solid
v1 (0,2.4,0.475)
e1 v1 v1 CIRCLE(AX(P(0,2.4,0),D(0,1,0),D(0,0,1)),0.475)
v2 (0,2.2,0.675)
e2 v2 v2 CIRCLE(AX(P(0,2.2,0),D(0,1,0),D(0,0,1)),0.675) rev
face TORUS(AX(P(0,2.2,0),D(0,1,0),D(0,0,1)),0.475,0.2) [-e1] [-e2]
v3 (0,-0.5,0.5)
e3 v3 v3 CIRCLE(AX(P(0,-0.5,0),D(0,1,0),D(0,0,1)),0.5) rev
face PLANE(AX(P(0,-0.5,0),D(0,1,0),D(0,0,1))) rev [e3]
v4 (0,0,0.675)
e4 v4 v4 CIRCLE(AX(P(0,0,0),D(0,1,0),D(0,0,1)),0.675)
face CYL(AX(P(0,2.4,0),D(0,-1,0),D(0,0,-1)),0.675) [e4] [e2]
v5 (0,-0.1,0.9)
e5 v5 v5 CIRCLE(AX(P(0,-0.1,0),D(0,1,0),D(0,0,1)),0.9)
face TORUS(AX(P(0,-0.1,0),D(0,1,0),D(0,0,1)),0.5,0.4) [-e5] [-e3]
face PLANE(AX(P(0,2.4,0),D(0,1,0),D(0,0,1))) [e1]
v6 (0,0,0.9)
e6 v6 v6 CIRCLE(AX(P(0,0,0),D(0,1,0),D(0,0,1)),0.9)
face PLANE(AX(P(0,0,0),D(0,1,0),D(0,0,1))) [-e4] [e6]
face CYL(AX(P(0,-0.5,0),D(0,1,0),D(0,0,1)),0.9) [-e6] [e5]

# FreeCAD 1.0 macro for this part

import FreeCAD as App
import Part
import Sketcher


def edges_at(feature, points):
    """Names of the edges that pass closest to the given points."""
    edges = feature.Shape.Edges
    near = lambda p: min(range(len(edges)), key=lambda i: edges[i].distToShape(Part.Vertex(*p))[0])
    return sorted({f"Edge{near(p) + 1}" for p in points})

doc = App.newDocument("Part")
body = doc.addObject("PartDesign::Body", "Body")

sketch1 = body.newObject("Sketcher::SketchObject", "Sketch")
sketch1.AttachmentSupport = (doc.getObject("XZ_Plane"), [""])
sketch1.MapMode = "FlatFace"
sketch1.addGeometry(Part.Circle(App.Vector(0, 0, 0), App.Vector(0, 0, 1), 0.7), False)
sketch1.addConstraint([
    Sketcher.Constraint("Coincident", 0, 3, -1, 1),
    Sketcher.Constraint("Diameter", 0, 1.35),
])
pad1 = body.newObject("PartDesign::Pad", "Pad")
pad1.Profile = sketch1
pad1.Length = 2.4
pad1.Reversed = True

sketch2 = body.newObject("Sketcher::SketchObject", "Sketch001")
sketch2.AttachmentSupport = (doc.getObject("XZ_Plane"), [""])
sketch2.MapMode = "FlatFace"
sketch2.addGeometry(Part.Circle(App.Vector(0, 0, 0), App.Vector(0, 0, 1), 0.9), False)
sketch2.addConstraint([
    Sketcher.Constraint("Coincident", 0, 3, -1, 1),
    Sketcher.Constraint("Diameter", 0, 1.8),
])
pad2 = body.newObject("PartDesign::Pad", "Pad001")
pad2.Profile = sketch2
pad2.Length = 0.5
doc.recompute()

fillet = body.newObject("PartDesign::Fillet", "Fillet")
fillet.Base = (pad2, edges_at(pad2, [(-0.9, -0.5, 0)]))
fillet.Radius = 0.4
doc.recompute()

fillet2 = body.newObject("PartDesign::Fillet", "Fillet001")
fillet2.Base = (fillet, edges_at(fillet, [(-0.675, 2.4, 0)]))
fillet2.Radius = 0.2

doc.recompute()
